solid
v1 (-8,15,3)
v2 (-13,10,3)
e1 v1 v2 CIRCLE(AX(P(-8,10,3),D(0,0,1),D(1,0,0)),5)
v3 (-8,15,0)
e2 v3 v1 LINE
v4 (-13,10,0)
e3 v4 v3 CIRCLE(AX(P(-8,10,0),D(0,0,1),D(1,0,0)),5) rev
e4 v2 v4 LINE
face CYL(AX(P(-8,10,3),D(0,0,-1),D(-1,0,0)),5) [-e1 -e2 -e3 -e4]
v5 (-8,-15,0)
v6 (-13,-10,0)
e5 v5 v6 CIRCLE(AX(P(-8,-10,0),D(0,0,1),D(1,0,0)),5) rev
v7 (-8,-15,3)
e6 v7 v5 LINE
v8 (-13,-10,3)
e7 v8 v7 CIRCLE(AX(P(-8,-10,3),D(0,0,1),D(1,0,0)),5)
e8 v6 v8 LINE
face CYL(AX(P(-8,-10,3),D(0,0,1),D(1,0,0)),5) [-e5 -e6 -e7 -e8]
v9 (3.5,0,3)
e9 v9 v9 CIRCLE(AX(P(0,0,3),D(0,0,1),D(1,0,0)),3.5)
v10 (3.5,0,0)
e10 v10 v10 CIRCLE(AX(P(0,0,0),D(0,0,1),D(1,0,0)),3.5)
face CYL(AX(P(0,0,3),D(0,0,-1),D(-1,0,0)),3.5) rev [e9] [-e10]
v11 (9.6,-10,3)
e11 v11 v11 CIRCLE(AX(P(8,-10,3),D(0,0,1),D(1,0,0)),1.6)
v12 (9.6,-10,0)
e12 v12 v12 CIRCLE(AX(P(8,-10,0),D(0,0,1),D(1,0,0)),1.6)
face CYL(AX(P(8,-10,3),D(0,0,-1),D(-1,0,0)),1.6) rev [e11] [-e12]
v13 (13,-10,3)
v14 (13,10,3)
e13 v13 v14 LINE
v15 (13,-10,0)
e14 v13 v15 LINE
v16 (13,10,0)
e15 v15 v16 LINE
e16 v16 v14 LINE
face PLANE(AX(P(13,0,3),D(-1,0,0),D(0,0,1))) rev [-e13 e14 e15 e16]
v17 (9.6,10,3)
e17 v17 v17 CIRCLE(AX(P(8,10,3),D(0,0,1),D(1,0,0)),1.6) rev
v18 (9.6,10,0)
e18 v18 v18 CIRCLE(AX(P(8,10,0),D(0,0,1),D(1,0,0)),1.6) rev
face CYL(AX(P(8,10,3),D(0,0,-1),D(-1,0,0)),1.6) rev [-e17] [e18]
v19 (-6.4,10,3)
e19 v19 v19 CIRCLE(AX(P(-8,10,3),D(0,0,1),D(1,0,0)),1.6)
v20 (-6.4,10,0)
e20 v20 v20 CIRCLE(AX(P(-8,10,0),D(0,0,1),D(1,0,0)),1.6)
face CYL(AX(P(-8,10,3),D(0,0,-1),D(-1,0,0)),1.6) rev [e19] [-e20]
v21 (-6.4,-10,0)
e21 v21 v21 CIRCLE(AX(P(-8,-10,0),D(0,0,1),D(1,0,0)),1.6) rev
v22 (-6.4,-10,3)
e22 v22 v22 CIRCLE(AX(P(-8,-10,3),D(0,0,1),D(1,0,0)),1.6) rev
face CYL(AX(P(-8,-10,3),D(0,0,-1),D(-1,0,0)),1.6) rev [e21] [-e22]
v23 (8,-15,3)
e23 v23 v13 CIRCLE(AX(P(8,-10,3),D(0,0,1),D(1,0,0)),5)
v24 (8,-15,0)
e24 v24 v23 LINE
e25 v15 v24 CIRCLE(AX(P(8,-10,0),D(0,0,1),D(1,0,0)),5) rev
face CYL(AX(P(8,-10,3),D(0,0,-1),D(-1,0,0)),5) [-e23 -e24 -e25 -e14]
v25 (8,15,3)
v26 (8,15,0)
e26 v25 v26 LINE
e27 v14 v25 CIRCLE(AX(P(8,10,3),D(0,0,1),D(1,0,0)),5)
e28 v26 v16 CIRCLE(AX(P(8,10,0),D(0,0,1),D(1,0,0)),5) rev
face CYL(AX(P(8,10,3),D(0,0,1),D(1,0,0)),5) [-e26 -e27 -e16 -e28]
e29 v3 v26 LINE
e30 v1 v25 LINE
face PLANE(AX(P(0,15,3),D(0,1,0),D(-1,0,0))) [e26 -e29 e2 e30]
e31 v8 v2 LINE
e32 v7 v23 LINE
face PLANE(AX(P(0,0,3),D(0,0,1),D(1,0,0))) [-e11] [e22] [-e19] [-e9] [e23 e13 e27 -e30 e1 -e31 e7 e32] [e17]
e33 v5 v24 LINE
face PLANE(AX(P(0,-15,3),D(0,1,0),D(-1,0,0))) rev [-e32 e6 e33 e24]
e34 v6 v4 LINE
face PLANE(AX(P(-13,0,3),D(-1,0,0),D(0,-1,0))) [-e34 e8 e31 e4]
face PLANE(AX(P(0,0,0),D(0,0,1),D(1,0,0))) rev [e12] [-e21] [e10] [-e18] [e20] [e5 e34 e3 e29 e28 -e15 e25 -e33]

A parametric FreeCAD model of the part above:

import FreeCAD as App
import Part
import Sketcher


def edges_at(feature, points):
    """Names of the edges that pass closest to the given points."""
    edges = feature.Shape.Edges
    near = lambda p: min(range(len(edges)), key=lambda i: edges[i].distToShape(Part.Vertex(*p))[0])
    return sorted({f"Edge{near(p) + 1}" for p in points})

doc = App.newDocument("Part")
params = doc.addObject("Spreadsheet::Sheet", "Params")
for row, (alias, value) in enumerate([
    ("sketch1_diameter", "7 mm"),
    ("sketch1_diameter2", "3.2 mm"),
    ("sketch1_width", "26 mm"),
    ("sketch1_height", "30 mm"),
    ("pad1_length", "3 mm"),
    ("fillet_radius", "5 mm"),
], start=1):
    params.set(f"A{row}", alias)
    params.set(f"B{row}", "=" + value)
    params.setAlias(f"B{row}", alias)

body = doc.addObject("PartDesign::Body", "Body")

# Sketch on XY plane
sketch1 = body.newObject("Sketcher::SketchObject", "Sketch")
sketch1.AttachmentSupport = (doc.getObject("XY_Plane"), [""])
sketch1.MapMode = "FlatFace"
sketch1.addGeometry(Part.LineSegment(App.Vector(-13, 15, 0), App.Vector(-13, -15, 0)), False)
sketch1.addGeometry(Part.LineSegment(App.Vector(-13, -15, 0), App.Vector(13, -15, 0)), False)
sketch1.addGeometry(Part.LineSegment(App.Vector(13, -15, 0), App.Vector(13, 15, 0)), False)
sketch1.addGeometry(Part.LineSegment(App.Vector(13, 15, 0), App.Vector(-13, 15, 0)), False)
sketch1.addGeometry(Part.Circle(App.Vector(-8, -10, 0), App.Vector(0, 0, 1), 1.6), False)
sketch1.addGeometry(Part.Circle(App.Vector(8, -10, 0), App.Vector(0, 0, 1), 1.6), False)
sketch1.addGeometry(Part.Circle(App.Vector(-8, 10, 0), App.Vector(0, 0, 1), 1.6), False)
sketch1.addGeometry(Part.Circle(App.Vector(0, 0, 0), App.Vector(0, 0, 1), 3.5), False)
sketch1.addGeometry(Part.Circle(App.Vector(8, 10, 0), App.Vector(0, 0, 1), 1.6), False)
sketch1.addConstraint(Sketcher.Constraint("Coincident", 0, 2, 1, 1))
sketch1.addConstraint(Sketcher.Constraint("Coincident", 1, 2, 2, 1))
sketch1.addConstraint(Sketcher.Constraint("Coincident", 2, 2, 3, 1))
sketch1.addConstraint(Sketcher.Constraint("Coincident", 3, 2, 0, 1))
sketch1.addConstraint(Sketcher.Constraint("Vertical", 0))
sketch1.addConstraint(Sketcher.Constraint("Horizontal", 1))
sketch1.addConstraint(Sketcher.Constraint("Vertical", 2))
sketch1.addConstraint(Sketcher.Constraint("Horizontal", 3))
sketch1.addConstraint(Sketcher.Constraint("Coincident", 7, 3, -1, 1))
sketch1.addConstraint(Sketcher.Constraint("Equal", 4, 5))
sketch1.addConstraint(Sketcher.Constraint("Equal", 5, 6))
sketch1.addConstraint(Sketcher.Constraint("Equal", 6, 8))
sketch1.addConstraint(Sketcher.Constraint("Symmetric", 5, 3, 6, 3, -1, 1))
sketch1.addConstraint(Sketcher.Constraint("Symmetric", 4, 3, 8, 3, -1, 1))
sketch1.addConstraint(Sketcher.Constraint("Symmetric", 0, 2, 2, 2, -1, 1))
sketch1.addConstraint(Sketcher.Constraint("Symmetric", 4, 3, 5, 3, -2))
sketch1.addConstraint(Sketcher.Constraint("Diameter", 7, 7.0))
sketch1.addConstraint(Sketcher.Constraint("Diameter", 4, 3.2))
sketch1.addConstraint(Sketcher.Constraint("DistanceX", 1, 1, 1, 2, 26.0))
sketch1.addConstraint(Sketcher.Constraint("DistanceY", 0, 2, 0, 1, 30.0))
sketch1.addConstraint(Sketcher.Constraint("DistanceX", 4, 3, -1, 1, 8.0))
sketch1.addConstraint(Sketcher.Constraint("DistanceY", 4, 3, -1, 1, 10.0))
sketch1.setExpression("Constraints[16]", "Params.sketch1_diameter")
sketch1.setExpression("Constraints[17]", "Params.sketch1_diameter2")
sketch1.setExpression("Constraints[18]", "Params.sketch1_width")
sketch1.setExpression("Constraints[19]", "Params.sketch1_height")
pad1 = body.newObject("PartDesign::Pad", "Pad")
pad1.Profile = sketch1
pad1.setExpression("Length", "Params.pad1_length")
doc.recompute()

fillet = body.newObject("PartDesign::Fillet", "Fillet")
fillet.Base = (pad1, edges_at(pad1, [
    (-13, -15, 1.5),
    (-13, 15, 1.5),
    (13, 15, 1.5),
    (13, -15, 1.5),
]))
fillet.setExpression("Radius", "Params.fillet_radius")

doc.recompute()
